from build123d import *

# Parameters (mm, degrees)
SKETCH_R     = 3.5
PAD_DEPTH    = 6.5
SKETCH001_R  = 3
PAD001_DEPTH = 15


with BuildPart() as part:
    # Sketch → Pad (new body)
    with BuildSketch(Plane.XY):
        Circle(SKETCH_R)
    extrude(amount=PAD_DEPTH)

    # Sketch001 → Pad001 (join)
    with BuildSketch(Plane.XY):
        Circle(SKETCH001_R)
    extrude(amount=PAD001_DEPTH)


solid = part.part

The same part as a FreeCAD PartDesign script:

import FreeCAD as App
import Part
import Sketcher
Q = App.Units.Quantity

doc = App.newDocument("Part")
body = doc.addObject("PartDesign::Body", "Body")

# Sketch on XY plane
sketch1 = body.newObject("Sketcher::SketchObject", "Sketch")
sketch1.AttachmentSupport = (doc.getObject("XY_Plane"), [""])
sketch1.MapMode = "FlatFace"
sketch1.addGeometry(Part.Circle(App.Vector(0, 0, 0), App.Vector(0, 0, 1), 3.5), False)
sketch1.addConstraint(Sketcher.Constraint("Coincident", 0, 3, -1, 1))
sketch1.addConstraint(Sketcher.Constraint("Diameter", 0, Q("7 mm")))
pad1 = body.newObject("PartDesign::Pad", "Pad")
pad1.Profile = sketch1
pad1.Length = 6.5

# Sketch on XY plane
sketch2 = body.newObject("Sketcher::SketchObject", "Sketch001")
sketch2.AttachmentSupport = (doc.getObject("XY_Plane"), [""])
sketch2.MapMode = "FlatFace"
sketch2.addGeometry(Part.Circle(App.Vector(0, 0, 0), App.Vector(0, 0, 1), 3), False)
sketch2.addConstraint(Sketcher.Constraint("Coincident", 0, 3, -1, 1))
sketch2.addConstraint(Sketcher.Constraint("Diameter", 0, Q("6 mm")))
pad2 = body.newObject("PartDesign::Pad", "Pad001")
pad2.Profile = sketch2
pad2.Length = 15

doc.recompute()
